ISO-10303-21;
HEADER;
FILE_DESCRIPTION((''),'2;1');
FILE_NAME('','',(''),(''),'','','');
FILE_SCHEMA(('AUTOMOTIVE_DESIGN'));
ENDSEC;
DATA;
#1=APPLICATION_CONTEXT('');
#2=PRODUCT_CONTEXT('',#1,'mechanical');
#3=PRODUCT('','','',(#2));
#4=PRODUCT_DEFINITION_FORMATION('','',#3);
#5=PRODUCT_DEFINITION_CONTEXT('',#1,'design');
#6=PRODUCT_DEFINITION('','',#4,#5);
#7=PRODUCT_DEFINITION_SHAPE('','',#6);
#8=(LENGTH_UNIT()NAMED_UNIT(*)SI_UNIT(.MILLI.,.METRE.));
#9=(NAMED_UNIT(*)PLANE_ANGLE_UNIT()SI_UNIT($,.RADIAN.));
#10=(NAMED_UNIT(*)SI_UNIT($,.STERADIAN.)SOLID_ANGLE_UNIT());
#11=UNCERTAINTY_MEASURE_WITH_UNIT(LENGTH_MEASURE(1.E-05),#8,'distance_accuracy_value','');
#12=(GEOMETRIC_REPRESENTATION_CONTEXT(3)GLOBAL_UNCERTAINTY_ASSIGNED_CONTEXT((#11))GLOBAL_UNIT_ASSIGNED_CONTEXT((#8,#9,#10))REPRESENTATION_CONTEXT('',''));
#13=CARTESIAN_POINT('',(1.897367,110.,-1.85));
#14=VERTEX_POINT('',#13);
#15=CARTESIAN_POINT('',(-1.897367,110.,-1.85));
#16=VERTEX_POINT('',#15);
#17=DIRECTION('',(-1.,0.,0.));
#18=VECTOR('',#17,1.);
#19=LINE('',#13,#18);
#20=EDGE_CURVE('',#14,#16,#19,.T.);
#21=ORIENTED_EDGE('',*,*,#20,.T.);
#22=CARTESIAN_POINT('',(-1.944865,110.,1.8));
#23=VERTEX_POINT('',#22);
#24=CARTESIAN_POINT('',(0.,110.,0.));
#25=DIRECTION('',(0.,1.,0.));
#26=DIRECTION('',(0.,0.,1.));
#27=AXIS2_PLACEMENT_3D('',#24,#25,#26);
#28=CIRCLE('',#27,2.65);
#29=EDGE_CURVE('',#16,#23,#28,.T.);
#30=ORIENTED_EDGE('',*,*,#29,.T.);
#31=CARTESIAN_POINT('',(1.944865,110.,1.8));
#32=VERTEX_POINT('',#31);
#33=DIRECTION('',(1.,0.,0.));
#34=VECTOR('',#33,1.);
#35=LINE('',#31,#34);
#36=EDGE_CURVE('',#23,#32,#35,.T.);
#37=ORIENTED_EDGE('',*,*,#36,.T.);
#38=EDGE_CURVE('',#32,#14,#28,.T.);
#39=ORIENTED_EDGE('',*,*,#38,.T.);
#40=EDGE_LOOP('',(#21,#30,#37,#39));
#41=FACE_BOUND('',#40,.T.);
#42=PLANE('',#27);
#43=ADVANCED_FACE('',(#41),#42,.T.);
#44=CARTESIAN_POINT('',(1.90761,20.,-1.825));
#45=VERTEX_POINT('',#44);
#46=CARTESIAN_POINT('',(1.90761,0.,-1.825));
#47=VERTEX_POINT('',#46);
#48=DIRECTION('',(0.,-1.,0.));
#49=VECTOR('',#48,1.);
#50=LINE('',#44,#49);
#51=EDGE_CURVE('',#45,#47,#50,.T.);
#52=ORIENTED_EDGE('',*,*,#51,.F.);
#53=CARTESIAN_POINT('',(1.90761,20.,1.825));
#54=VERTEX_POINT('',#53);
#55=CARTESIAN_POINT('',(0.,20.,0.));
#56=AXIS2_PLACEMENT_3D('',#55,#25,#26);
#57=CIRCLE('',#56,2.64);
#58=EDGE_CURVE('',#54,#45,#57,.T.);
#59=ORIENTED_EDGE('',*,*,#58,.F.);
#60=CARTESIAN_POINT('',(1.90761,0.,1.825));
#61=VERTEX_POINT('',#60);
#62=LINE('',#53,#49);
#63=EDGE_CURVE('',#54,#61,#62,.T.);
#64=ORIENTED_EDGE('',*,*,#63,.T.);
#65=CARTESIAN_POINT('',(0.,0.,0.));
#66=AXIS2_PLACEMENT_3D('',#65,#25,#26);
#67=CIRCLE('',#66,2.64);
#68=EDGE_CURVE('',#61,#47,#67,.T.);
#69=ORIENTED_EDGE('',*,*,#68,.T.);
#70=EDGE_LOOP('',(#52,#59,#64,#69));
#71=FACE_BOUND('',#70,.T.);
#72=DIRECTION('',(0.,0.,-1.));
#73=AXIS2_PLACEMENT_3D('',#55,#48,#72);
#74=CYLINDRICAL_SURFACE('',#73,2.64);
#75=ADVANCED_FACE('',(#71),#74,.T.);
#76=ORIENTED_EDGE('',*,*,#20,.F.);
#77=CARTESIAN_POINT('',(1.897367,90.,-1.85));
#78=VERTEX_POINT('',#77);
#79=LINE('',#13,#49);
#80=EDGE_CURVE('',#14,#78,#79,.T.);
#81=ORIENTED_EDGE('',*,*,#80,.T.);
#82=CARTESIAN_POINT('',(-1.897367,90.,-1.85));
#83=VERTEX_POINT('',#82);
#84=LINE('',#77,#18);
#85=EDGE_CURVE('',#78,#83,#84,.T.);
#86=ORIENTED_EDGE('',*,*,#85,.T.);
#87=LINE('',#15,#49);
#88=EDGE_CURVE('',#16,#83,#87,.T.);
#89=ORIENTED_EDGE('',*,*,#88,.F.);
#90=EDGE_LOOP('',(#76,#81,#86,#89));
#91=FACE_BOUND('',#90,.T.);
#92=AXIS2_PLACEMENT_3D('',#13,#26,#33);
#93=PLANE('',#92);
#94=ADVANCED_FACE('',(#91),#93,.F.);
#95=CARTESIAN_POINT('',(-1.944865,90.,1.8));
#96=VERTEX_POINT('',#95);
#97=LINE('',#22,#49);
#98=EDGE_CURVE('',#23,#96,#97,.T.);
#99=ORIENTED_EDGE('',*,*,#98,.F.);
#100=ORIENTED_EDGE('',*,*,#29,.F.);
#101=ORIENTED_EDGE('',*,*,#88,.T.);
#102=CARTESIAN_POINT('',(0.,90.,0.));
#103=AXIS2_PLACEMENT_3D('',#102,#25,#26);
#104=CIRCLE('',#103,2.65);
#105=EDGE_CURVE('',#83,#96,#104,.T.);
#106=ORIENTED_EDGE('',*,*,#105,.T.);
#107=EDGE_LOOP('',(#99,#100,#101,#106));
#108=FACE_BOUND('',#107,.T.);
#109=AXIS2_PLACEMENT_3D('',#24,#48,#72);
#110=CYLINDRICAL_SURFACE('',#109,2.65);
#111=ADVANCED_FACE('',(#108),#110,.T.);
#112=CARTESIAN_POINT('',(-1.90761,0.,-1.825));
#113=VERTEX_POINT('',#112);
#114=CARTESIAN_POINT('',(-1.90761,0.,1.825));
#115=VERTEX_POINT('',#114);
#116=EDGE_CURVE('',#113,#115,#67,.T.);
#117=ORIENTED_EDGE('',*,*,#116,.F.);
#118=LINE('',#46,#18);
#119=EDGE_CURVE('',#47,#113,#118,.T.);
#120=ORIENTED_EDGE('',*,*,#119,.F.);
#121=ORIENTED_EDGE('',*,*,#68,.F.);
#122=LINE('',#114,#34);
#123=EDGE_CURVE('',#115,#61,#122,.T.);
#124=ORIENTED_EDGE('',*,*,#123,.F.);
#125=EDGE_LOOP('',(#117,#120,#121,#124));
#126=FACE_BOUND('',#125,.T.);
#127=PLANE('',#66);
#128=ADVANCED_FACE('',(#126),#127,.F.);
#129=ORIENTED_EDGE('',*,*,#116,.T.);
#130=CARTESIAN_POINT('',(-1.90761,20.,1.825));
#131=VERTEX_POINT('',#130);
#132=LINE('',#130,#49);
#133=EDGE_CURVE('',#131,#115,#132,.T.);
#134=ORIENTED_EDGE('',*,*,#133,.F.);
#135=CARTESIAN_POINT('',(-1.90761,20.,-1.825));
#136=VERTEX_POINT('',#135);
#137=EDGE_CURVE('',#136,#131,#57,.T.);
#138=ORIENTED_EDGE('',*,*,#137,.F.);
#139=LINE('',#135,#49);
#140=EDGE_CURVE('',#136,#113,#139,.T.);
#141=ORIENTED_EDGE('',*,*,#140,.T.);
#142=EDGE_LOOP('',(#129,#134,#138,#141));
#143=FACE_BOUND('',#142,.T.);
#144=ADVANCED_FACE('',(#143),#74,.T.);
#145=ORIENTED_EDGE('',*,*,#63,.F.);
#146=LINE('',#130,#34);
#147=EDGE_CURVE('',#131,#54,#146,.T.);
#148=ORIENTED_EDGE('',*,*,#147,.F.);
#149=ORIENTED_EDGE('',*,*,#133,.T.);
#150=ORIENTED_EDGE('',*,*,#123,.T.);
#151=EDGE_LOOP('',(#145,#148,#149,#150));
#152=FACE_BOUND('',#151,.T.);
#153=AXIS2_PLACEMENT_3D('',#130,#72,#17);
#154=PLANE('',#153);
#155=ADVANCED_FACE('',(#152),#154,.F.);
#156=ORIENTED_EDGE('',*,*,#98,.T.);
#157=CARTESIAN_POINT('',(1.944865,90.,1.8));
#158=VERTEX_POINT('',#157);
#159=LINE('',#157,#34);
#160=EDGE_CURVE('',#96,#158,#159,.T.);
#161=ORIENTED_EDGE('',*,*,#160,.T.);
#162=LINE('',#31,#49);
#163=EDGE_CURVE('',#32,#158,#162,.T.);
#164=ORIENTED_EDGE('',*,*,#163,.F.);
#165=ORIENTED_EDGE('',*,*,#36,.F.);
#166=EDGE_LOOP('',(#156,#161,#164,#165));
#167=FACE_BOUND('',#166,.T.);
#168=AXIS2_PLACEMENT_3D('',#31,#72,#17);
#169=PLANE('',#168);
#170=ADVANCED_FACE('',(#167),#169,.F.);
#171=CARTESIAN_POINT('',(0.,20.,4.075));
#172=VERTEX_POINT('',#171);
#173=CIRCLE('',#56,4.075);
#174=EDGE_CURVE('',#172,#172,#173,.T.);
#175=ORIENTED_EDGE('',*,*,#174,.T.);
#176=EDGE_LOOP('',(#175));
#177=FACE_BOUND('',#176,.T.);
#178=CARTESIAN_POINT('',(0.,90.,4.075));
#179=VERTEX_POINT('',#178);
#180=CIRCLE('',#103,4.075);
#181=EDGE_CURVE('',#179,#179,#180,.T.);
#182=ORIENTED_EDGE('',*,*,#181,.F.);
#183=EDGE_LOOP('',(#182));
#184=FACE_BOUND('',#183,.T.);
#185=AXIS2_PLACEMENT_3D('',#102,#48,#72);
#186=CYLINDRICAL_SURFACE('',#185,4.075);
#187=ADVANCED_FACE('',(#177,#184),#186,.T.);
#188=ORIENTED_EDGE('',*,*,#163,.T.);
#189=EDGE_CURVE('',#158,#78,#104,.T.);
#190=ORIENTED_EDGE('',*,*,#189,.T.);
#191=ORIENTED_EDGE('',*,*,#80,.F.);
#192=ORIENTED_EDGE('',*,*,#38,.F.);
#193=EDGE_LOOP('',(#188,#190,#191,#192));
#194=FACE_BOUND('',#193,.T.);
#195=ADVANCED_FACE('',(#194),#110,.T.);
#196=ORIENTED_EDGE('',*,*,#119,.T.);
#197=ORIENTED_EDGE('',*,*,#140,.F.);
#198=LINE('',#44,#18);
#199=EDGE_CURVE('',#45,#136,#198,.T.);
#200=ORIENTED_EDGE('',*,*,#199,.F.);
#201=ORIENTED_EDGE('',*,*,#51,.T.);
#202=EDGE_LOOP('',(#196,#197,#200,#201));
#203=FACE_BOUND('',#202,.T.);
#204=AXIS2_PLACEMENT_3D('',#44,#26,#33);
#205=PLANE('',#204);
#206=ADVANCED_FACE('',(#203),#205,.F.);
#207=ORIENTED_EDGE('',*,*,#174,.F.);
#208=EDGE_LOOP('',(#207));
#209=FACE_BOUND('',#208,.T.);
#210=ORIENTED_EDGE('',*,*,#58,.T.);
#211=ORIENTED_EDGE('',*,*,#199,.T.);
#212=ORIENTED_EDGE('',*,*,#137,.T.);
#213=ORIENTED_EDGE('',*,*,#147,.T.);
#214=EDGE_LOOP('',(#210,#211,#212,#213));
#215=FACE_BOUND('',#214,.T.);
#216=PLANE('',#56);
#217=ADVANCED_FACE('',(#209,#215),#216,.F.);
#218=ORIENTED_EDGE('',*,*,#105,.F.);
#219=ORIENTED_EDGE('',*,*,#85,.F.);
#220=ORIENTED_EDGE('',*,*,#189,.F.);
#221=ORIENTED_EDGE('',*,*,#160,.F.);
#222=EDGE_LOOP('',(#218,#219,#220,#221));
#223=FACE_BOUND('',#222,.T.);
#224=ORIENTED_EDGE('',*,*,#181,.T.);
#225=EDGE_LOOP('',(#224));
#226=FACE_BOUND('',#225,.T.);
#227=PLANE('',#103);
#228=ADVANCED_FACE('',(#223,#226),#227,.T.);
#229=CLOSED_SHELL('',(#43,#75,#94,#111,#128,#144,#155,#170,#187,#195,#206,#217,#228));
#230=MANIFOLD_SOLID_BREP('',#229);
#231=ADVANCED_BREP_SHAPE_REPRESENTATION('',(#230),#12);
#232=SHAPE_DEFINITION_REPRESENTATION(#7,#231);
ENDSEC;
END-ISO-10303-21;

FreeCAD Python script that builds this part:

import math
import FreeCAD as App
import Part
import Sketcher
from FreeCAD import Vector

doc = App.newDocument("Part")
body = doc.addObject("PartDesign::Body", "Body")

# Sketch on XZ plane
sketch1 = doc.addObject("Sketcher::SketchObject", "Sketch")
body.addObject(sketch1)
sketch1.AttachmentSupport = (doc.XZ_Plane, [""])
sketch1.MapMode = "FlatFace"
sketch1.addGeometry([
    Part.LineSegment(Vector(1.90761, -1.825, 0), Vector(-1.90761, -1.825, 0)),
    Part.ArcOfCircle(Part.Circle(Vector(0, 0, 0), Vector(0, 0, 1), 2.64), math.radians(136.267858), math.radians(223.732142)),
    Part.LineSegment(Vector(-1.90761, 1.825, 0), Vector(1.90761, 1.825, 0)),
    Part.ArcOfCircle(Part.Circle(Vector(0, 0, 0), Vector(0, 0, 1), 2.64), math.radians(-43.732142), math.radians(43.732142)),
], False)
sketch1.addConstraint([
    Sketcher.Constraint("Coincident", 0, 2, 1, 2),
    Sketcher.Constraint("Coincident", 1, 1, 2, 1),
    Sketcher.Constraint("Coincident", 2, 2, 3, 2),
    Sketcher.Constraint("Coincident", 3, 1, 0, 1),
    Sketcher.Constraint("Horizontal", 0),
    Sketcher.Constraint("Horizontal", 2),
    Sketcher.Constraint("Coincident", 1, 3, -1, 1),
    Sketcher.Constraint("Coincident", 3, 3, -1, 1),
    Sketcher.Constraint("Equal", 1, 3),
    Sketcher.Constraint("Vertical", 0, 2, 1, 1),
    Sketcher.Constraint("Radius", 1, 2.64),
    Sketcher.Constraint("DistanceY", 0, 2, 1, 1, 3.65),
])
pad1 = doc.addObject("PartDesign::Pad", "Pad")
body.addObject(pad1)
pad1.Profile = sketch1
pad1.Length = 20
pad1.Reversed = True

# Sketch on XZ plane
sketch2 = doc.addObject("Sketcher::SketchObject", "Sketch001")
body.addObject(sketch2)
sketch2.AttachmentSupport = (doc.XZ_Plane, [""])
sketch2.MapMode = "FlatFace"
sketch2.AttachmentOffset = App.Placement(Vector(0, 0, -20), App.Rotation())
sketch2.addGeometry(Part.Circle(Vector(0, 0, 0), Vector(0, 0, 1), 4.075), False)
sketch2.addConstraint([
    Sketcher.Constraint("Coincident", 0, 3, -1, 1),
    Sketcher.Constraint("Diameter", 0, 8.15),
])
pad2 = doc.addObject("PartDesign::Pad", "Pad001")
body.addObject(pad2)
pad2.Profile = sketch2
pad2.Length = 70
pad2.Reversed = True

# Sketch on XZ plane
sketch3 = doc.addObject("Sketcher::SketchObject", "Sketch002")
body.addObject(sketch3)
sketch3.AttachmentSupport = (doc.XZ_Plane, [""])
sketch3.MapMode = "FlatFace"
sketch3.AttachmentOffset = App.Placement(Vector(0, 0, -90), App.Rotation())
sketch3.addGeometry([
    Part.LineSegment(Vector(1.897367, -1.85, 0), Vector(-1.897367, -1.85, 0)),
    Part.ArcOfCircle(Part.Circle(Vector(0, 0, 0), Vector(0, 0, 1), 2.65), math.radians(137.215305), math.radians(224.275822)),
    Part.LineSegment(Vector(-1.944865, 1.8, 0), Vector(1.944865, 1.8, 0)),
    Part.ArcOfCircle(Part.Circle(Vector(0, 0, 0), Vector(0, 0, 1), 2.65), math.radians(-44.275822), math.radians(42.784695)),
], False)
sketch3.addConstraint([
    Sketcher.Constraint("Coincident", 0, 2, 1, 2),
    Sketcher.Constraint("Coincident", 1, 1, 2, 1),
    Sketcher.Constraint("Coincident", 2, 2, 3, 2),
    Sketcher.Constraint("Coincident", 3, 1, 0, 1),
    Sketcher.Constraint("Horizontal", 0),
    Sketcher.Constraint("Horizontal", 2),
    Sketcher.Constraint("Coincident", 1, 3, -1, 1),
    Sketcher.Constraint("Coincident", 3, 3, -1, 1),
    Sketcher.Constraint("Equal", 1, 3),
    Sketcher.Constraint("Radius", 1, 2.65),
    Sketcher.Constraint("DistanceY", -1, 1, 1, 1, 1.8),
    Sketcher.Constraint("DistanceY", 0, 2, -1, 1, 1.85),
])
pad3 = doc.addObject("PartDesign::Pad", "Pad002")
body.addObject(pad3)
pad3.Profile = sketch3
pad3.Length = 20
pad3.Reversed = True

doc.recompute()
